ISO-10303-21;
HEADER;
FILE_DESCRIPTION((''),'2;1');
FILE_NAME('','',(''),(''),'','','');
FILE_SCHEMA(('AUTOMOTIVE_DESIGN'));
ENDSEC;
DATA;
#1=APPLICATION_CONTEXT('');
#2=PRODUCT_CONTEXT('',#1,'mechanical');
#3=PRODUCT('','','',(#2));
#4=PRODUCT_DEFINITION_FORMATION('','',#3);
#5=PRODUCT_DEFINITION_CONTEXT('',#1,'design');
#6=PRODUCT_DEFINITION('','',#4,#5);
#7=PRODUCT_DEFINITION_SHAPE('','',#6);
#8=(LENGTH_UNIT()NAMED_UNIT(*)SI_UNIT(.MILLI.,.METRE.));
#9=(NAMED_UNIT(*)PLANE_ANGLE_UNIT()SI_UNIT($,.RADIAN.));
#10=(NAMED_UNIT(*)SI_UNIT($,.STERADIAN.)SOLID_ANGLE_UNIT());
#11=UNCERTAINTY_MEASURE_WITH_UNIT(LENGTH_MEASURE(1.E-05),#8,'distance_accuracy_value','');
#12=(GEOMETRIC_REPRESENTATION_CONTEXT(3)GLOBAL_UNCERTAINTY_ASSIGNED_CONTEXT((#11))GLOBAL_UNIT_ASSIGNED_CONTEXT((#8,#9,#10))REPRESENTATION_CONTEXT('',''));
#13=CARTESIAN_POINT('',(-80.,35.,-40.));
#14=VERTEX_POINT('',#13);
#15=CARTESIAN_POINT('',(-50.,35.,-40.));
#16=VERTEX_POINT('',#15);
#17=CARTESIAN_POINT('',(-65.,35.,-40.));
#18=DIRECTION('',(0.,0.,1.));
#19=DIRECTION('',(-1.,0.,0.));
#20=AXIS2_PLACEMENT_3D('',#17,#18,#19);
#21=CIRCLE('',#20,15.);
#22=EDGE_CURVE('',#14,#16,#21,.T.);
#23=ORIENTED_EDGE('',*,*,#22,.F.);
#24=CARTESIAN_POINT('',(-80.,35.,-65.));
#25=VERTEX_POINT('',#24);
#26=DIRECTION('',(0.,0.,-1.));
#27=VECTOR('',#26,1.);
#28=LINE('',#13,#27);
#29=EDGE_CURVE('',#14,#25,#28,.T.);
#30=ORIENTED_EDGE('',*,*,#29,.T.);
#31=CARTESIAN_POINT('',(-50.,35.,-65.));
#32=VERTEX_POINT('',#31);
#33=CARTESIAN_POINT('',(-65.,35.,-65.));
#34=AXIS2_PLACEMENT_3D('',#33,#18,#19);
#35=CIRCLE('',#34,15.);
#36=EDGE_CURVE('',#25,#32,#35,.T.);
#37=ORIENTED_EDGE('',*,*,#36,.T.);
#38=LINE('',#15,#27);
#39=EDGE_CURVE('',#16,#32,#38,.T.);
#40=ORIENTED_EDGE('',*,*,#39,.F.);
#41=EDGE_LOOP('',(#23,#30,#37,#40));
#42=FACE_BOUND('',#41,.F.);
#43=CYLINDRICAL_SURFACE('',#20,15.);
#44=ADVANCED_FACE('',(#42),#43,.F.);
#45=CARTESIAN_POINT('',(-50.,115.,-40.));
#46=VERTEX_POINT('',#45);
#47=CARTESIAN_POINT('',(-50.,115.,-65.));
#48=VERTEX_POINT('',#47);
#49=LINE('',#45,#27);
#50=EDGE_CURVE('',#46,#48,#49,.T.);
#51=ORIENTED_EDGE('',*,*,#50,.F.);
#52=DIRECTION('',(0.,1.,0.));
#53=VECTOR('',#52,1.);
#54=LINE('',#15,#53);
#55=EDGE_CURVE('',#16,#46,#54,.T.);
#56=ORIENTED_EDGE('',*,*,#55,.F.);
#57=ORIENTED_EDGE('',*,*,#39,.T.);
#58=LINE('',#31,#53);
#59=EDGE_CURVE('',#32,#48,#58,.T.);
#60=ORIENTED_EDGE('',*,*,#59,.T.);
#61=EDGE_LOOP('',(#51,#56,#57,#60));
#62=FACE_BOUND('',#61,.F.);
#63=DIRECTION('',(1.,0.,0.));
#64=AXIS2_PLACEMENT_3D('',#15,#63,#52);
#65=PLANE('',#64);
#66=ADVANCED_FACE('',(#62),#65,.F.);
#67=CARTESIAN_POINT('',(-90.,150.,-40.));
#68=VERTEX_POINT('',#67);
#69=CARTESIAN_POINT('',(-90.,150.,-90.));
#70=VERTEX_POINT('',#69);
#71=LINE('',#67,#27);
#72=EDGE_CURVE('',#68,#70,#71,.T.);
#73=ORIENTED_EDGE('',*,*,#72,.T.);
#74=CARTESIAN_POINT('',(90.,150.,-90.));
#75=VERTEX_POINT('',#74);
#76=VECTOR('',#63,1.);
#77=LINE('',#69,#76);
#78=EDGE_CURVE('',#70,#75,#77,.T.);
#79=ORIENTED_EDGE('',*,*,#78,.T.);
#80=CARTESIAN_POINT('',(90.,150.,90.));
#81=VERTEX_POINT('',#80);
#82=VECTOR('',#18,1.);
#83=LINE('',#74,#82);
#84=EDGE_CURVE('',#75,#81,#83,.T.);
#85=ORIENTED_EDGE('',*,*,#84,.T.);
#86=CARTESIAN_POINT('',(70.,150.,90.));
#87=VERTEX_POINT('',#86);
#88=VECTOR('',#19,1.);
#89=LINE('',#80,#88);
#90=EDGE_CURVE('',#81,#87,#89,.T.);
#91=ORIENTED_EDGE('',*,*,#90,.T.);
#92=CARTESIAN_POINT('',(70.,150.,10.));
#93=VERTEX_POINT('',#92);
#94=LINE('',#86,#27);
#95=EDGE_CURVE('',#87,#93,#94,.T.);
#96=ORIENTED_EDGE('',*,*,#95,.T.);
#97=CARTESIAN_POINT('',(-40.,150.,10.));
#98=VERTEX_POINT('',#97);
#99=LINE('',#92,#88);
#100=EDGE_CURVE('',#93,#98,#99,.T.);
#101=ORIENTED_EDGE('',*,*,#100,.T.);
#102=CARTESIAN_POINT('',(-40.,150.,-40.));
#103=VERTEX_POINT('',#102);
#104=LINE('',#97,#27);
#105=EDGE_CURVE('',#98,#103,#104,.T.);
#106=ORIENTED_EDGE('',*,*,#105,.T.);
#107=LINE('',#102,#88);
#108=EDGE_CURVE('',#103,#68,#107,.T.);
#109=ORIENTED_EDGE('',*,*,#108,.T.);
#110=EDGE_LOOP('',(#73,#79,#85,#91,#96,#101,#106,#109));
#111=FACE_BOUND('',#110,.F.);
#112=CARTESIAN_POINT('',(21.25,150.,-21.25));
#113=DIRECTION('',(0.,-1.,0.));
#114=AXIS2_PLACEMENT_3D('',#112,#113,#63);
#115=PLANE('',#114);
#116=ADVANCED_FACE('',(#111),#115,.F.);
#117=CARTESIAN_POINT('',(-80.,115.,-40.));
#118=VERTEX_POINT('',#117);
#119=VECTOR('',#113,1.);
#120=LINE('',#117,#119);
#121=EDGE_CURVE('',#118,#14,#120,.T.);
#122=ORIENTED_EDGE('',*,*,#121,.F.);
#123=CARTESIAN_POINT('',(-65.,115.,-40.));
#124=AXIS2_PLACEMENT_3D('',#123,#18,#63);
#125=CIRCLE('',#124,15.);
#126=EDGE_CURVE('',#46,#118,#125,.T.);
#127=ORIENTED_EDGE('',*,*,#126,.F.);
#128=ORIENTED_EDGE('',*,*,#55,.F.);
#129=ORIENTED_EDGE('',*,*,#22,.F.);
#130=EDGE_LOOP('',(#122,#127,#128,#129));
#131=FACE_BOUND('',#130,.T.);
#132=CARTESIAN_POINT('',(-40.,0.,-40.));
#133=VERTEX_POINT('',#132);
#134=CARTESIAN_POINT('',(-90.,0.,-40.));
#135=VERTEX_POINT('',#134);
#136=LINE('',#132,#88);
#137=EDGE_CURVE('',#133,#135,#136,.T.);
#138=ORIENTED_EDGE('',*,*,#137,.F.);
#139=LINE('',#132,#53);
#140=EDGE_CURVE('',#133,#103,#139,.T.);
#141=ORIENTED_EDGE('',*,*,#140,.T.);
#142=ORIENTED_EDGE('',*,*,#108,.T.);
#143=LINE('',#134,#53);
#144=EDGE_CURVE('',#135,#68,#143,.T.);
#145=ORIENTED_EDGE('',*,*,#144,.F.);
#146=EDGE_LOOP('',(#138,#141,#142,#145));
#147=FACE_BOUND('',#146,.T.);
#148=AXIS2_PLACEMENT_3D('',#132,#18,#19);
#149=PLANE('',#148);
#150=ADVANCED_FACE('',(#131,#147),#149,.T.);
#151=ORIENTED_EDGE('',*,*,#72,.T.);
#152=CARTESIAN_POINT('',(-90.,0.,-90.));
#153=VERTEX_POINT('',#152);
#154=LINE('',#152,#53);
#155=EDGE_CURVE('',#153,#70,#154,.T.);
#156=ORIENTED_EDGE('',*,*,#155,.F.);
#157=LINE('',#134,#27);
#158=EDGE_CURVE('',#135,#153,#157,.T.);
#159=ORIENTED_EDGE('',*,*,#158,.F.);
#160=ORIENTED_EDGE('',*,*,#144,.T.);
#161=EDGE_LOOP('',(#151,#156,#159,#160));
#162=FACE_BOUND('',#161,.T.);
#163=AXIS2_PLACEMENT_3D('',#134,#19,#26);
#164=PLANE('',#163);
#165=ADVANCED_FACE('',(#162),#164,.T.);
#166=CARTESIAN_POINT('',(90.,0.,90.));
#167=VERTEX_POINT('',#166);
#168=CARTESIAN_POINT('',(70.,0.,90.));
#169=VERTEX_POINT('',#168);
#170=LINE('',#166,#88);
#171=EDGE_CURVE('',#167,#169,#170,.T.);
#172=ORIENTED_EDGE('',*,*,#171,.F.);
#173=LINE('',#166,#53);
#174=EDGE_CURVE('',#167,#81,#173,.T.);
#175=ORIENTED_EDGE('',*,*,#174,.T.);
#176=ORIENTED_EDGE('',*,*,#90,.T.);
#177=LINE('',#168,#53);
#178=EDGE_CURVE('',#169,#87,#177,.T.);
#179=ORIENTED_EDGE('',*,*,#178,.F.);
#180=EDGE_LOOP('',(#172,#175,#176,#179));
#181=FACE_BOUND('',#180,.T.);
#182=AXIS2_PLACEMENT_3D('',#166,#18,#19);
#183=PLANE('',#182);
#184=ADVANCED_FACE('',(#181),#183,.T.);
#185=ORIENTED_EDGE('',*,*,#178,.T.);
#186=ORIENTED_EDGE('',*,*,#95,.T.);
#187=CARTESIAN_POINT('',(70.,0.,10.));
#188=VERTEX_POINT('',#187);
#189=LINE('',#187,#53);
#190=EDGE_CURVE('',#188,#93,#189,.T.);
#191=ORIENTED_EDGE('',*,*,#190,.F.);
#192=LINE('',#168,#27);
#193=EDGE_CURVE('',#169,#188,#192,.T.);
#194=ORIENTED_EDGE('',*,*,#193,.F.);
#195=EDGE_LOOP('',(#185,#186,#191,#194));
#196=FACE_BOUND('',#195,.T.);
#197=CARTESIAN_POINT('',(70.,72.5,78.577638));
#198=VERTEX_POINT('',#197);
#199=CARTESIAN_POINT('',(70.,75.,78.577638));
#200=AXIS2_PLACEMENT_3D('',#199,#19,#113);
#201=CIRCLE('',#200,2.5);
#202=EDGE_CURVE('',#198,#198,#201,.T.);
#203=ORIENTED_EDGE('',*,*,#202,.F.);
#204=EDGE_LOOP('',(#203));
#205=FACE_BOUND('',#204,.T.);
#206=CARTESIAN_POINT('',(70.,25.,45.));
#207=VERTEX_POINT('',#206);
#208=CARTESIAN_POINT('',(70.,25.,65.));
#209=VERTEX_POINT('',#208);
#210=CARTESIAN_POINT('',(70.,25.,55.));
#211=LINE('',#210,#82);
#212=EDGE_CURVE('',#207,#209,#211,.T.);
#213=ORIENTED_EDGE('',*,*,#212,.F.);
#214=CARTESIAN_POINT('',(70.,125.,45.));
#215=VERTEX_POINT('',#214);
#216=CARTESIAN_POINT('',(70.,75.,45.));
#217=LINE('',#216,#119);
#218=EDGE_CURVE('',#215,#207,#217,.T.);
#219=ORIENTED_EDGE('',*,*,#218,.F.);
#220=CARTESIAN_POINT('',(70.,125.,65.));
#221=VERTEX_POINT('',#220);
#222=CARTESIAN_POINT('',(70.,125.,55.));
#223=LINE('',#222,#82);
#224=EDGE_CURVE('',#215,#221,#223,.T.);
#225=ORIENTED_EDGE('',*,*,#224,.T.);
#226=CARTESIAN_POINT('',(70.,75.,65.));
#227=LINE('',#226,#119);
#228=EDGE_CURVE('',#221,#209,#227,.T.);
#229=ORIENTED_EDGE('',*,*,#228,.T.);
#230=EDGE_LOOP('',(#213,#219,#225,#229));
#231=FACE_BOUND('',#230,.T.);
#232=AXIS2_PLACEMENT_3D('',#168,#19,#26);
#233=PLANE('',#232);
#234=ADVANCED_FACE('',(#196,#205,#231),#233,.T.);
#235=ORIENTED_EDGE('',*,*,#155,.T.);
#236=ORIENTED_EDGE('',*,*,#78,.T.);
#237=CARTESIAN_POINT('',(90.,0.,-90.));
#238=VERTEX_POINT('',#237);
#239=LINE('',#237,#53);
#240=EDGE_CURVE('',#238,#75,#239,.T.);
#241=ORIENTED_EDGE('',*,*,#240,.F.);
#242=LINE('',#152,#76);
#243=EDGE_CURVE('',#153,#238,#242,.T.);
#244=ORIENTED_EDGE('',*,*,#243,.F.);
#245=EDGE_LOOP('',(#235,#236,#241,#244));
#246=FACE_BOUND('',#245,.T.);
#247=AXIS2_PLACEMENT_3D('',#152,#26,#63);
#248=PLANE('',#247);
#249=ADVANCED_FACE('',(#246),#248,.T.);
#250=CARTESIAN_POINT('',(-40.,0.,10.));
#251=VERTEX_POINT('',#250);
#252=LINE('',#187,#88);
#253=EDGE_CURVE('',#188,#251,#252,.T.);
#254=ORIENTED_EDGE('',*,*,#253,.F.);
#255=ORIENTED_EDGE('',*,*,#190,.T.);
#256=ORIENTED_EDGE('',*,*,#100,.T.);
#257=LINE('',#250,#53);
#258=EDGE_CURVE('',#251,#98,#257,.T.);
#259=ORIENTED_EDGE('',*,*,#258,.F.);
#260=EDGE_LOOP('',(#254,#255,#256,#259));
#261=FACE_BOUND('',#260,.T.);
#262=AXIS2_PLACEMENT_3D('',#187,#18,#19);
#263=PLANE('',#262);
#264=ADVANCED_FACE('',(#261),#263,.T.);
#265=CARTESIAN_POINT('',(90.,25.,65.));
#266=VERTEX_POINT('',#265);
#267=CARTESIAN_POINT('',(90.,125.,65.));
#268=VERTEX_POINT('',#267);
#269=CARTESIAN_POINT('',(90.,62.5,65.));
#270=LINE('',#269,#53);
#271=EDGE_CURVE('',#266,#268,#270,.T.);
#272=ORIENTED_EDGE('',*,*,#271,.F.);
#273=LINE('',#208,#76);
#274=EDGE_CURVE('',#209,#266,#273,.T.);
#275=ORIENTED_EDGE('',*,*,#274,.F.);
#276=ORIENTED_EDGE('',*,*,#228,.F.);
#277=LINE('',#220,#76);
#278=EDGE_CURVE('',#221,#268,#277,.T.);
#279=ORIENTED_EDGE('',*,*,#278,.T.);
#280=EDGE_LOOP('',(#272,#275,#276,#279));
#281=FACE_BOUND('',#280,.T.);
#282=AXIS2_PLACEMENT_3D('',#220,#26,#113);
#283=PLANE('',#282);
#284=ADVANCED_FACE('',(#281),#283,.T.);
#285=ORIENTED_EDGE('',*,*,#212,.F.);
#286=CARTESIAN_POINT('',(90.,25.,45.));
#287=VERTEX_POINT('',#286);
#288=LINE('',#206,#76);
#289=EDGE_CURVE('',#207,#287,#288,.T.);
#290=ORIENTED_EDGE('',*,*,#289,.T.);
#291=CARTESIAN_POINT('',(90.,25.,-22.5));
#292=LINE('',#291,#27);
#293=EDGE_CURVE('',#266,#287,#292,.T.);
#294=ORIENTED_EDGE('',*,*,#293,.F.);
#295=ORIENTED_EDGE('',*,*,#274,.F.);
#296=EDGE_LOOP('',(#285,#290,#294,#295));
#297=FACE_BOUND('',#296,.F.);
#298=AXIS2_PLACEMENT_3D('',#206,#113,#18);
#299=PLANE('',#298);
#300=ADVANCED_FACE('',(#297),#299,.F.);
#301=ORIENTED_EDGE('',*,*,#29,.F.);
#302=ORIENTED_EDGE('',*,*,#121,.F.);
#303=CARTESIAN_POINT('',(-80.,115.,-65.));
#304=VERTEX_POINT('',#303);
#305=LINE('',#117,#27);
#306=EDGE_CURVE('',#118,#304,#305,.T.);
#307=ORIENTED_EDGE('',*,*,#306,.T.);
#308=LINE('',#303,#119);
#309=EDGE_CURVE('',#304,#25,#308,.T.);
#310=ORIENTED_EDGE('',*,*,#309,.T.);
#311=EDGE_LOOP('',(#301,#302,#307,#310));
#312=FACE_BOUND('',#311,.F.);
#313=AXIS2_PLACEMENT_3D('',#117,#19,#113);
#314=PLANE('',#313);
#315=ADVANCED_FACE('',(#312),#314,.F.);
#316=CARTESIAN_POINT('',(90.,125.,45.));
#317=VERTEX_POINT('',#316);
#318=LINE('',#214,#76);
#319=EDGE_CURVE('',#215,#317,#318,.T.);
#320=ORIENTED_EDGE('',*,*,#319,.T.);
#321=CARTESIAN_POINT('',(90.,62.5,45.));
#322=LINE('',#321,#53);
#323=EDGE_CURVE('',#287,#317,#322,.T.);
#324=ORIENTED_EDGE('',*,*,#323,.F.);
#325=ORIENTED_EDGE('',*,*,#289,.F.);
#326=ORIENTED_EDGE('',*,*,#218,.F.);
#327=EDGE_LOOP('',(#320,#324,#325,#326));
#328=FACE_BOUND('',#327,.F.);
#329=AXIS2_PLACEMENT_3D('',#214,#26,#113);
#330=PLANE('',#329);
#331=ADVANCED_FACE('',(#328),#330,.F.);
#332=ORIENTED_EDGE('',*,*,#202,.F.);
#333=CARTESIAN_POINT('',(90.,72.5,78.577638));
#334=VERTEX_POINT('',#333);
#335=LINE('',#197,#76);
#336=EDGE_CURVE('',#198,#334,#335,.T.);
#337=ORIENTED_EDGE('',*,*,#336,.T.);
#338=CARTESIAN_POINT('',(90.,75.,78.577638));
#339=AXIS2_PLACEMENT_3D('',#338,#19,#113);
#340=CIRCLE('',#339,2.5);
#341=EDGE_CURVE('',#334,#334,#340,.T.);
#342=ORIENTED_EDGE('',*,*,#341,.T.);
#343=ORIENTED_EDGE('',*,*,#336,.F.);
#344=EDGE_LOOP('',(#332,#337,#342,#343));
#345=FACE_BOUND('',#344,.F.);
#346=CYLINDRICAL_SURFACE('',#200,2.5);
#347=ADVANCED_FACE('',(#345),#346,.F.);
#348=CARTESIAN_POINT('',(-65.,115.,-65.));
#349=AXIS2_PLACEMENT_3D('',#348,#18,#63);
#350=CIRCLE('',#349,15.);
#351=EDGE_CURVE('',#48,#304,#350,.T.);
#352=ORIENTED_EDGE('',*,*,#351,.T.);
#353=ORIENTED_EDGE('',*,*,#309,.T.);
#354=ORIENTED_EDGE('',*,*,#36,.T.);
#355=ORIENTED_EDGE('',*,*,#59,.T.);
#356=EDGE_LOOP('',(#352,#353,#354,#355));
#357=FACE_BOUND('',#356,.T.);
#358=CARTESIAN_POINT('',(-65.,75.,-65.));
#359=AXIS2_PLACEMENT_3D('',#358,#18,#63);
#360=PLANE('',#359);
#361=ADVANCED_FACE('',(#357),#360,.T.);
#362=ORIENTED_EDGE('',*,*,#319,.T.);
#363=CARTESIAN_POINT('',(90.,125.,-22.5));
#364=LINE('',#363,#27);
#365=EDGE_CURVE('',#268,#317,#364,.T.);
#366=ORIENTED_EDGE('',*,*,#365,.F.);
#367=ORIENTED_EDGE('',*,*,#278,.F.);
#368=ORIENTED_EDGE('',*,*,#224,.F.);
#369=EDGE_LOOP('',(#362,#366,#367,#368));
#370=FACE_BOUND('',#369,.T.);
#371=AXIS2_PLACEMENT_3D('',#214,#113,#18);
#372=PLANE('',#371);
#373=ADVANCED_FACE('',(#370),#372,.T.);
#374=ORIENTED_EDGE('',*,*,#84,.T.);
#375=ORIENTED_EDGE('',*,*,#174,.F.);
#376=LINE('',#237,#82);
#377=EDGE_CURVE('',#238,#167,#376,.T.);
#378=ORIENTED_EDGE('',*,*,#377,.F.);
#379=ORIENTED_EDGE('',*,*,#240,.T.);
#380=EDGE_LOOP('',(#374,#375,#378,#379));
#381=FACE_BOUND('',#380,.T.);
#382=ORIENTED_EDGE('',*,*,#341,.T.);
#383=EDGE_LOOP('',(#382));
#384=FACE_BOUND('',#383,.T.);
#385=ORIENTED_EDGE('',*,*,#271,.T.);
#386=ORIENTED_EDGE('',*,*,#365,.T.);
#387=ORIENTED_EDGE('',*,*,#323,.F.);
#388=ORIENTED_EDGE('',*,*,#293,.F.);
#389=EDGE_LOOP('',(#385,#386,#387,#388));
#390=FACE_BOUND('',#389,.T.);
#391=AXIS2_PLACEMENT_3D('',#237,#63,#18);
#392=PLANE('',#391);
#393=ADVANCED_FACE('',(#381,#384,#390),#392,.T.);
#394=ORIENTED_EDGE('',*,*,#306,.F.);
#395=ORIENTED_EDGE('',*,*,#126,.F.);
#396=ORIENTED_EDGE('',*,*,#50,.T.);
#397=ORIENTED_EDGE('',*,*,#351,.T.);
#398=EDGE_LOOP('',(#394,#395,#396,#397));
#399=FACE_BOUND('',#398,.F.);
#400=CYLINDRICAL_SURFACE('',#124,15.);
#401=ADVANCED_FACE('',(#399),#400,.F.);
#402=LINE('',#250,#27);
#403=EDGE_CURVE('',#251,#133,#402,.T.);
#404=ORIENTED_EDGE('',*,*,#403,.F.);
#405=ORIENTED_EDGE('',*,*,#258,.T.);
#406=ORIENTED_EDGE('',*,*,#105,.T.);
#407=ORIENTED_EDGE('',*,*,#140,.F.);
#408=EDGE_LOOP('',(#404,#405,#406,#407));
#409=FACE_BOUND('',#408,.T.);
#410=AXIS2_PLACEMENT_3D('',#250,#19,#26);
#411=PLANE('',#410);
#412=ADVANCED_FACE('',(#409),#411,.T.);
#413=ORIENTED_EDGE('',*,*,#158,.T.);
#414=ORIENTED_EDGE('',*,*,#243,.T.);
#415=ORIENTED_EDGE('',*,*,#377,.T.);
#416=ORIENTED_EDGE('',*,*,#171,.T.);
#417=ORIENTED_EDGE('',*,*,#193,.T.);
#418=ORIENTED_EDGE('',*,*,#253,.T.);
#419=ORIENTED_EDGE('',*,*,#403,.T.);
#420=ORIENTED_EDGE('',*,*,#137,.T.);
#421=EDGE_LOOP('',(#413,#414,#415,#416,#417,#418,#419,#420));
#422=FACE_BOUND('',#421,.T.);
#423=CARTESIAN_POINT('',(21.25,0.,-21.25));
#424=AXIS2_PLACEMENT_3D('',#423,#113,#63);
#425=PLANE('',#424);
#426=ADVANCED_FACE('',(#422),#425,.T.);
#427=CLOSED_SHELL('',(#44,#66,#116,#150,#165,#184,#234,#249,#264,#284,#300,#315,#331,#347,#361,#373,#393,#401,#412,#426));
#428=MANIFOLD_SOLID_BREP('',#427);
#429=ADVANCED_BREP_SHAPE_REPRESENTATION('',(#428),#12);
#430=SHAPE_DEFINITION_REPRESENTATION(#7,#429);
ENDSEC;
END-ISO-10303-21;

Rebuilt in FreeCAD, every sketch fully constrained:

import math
import FreeCAD as App
import Part
import Sketcher
Q = App.Units.Quantity


def add_polygon(sketch, points):
    """Adds a closed chain of lines whose ends are joined by coincident constraints."""
    first, n = sketch.GeometryCount, len(points)
    for a, b in zip(points, points[1:] + points[:1]):
        sketch.addGeometry(Part.LineSegment(App.Vector(*a, 0), App.Vector(*b, 0)), False)
    for i in range(n):
        sketch.addConstraint(Sketcher.Constraint("Coincident", first + i, 2, first + (i + 1) % n, 1))

doc = App.newDocument("Part")
body = doc.addObject("PartDesign::Body", "Body")

sketch1 = body.newObject("Sketcher::SketchObject", "Sketch")
sketch1.AttachmentSupport = (doc.getObject("XZ_Plane"), [""])
sketch1.MapMode = "FlatFace"
add_polygon(sketch1, [(90, -90), (90, 90), (70, 90), (70, 10), (-40, 10), (-40, -40), (-90, -40), (-90, -90)])
sketch1.addConstraint([
    Sketcher.Constraint("Vertical", 0),
    Sketcher.Constraint("Horizontal", 1),
    Sketcher.Constraint("Vertical", 2),
    Sketcher.Constraint("Horizontal", 3),
    Sketcher.Constraint("Vertical", 4),
    Sketcher.Constraint("Horizontal", 5),
    Sketcher.Constraint("Vertical", 6),
    Sketcher.Constraint("Horizontal", 7),
    Sketcher.Constraint("Symmetric", 0, 2, 6, 2, -1, 1),
    Sketcher.Constraint("Equal", 7, 0),
    Sketcher.Constraint("Equal", 5, 4),
    Sketcher.Constraint("Equal", 4, 6),
    Sketcher.Constraint("DistanceX", 1, 2, 1, 1, Q("20 mm")),
    Sketcher.Constraint("DistanceX", 3, 2, 3, 1, Q("110 mm")),
    Sketcher.Constraint("DistanceX", 5, 2, 5, 1, Q("50 mm")),
])
pad1 = body.newObject("PartDesign::Pad", "Pad")
pad1.Profile = sketch1
pad1.Length = 150
pad1.Reversed = True

sketch2 = body.newObject("Sketcher::SketchObject", "Sketch001")
sketch2.AttachmentSupport = (doc.getObject("YZ_Plane"), [""])
sketch2.MapMode = "FlatFace"
sketch2.AttachmentOffset = App.Placement(App.Vector(0, 0, 70), App.Rotation())
sketch2.addGeometry(Part.Circle(App.Vector(75, 78.6, 0), App.Vector(0, 0, 1), 2.5), False)
sketch2.addConstraint([
    Sketcher.Constraint("Diameter", 0, Q("5 mm")),
    Sketcher.Constraint("DistanceX", -1, 1, 0, 3, Q("75 mm")),
    Sketcher.Constraint("DistanceY", -1, 1, 0, 3, Q("78.577638 mm")),
])
pocket1 = body.newObject("PartDesign::Pocket", "Pocket")
pocket1.Profile = sketch2
pocket1.Type = "ThroughAll"
pocket1.Reversed = True

sketch3 = body.newObject("Sketcher::SketchObject", "Sketch002")
sketch3.AttachmentSupport = (doc.getObject("YZ_Plane"), [""])
sketch3.MapMode = "FlatFace"
sketch3.AttachmentOffset = App.Placement(App.Vector(0, 0, 70), App.Rotation())
add_polygon(sketch3, [(125, 65), (125, 45), (25, 45), (25, 65)])
sketch3.addConstraint([
    Sketcher.Constraint("Vertical", 0),
    Sketcher.Constraint("Horizontal", 1),
    Sketcher.Constraint("Vertical", 2),
    Sketcher.Constraint("Horizontal", 3),
    Sketcher.Constraint("DistanceX", 1, 2, 1, 1, Q("100 mm")),
    Sketcher.Constraint("DistanceY", 0, 2, 0, 1, Q("20 mm")),
    Sketcher.Constraint("DistanceX", -1, 1, 0, 2, Q("125 mm")),
    Sketcher.Constraint("DistanceY", -1, 1, 0, 2, Q("45 mm")),
])
pocket2 = body.newObject("PartDesign::Pocket", "Pocket001")
pocket2.Profile = sketch3
pocket2.Type = "ThroughAll"
pocket2.Reversed = True

sketch4 = body.newObject("Sketcher::SketchObject", "Sketch003")
sketch4.AttachmentSupport = (doc.getObject("XY_Plane"), [""])
sketch4.MapMode = "FlatFace"
sketch4.AttachmentOffset = App.Placement(App.Vector(0, 0, -40), App.Rotation())
sketch4.addGeometry([
    Part.LineSegment(App.Vector(-50, 35, 0), App.Vector(-50, 115, 0)),
    Part.ArcOfCircle(Part.Circle(App.Vector(-65, 115, 0), App.Vector(0, 0, 1), 15), math.radians(0), math.radians(180)),
    Part.LineSegment(App.Vector(-80, 115, 0), App.Vector(-80, 35, 0)),
    Part.ArcOfCircle(Part.Circle(App.Vector(-65, 35, 0), App.Vector(0, 0, 1), 15), math.radians(180), math.radians(360)),
], False)
sketch4.addConstraint([
    Sketcher.Constraint("Tangent", 0, 2, 1, 1),
    Sketcher.Constraint("Tangent", 1, 2, 2, 1),
    Sketcher.Constraint("Tangent", 2, 2, 3, 1),
    Sketcher.Constraint("Tangent", 3, 2, 0, 1),
    Sketcher.Constraint("Vertical", 0),
    Sketcher.Constraint("Vertical", 2),
    Sketcher.Constraint("Radius", 1, Q("15 mm")),
    Sketcher.Constraint("DistanceY", 0, 1, 0, 2, Q("80 mm")),
    Sketcher.Constraint("DistanceX", 1, 3, -1, 1, Q("65 mm")),
    Sketcher.Constraint("DistanceY", -1, 1, 1, 3, Q("115 mm")),
])
pocket3 = body.newObject("PartDesign::Pocket", "Pocket002")
pocket3.Profile = sketch4
pocket3.Length = 25

doc.recompute()
